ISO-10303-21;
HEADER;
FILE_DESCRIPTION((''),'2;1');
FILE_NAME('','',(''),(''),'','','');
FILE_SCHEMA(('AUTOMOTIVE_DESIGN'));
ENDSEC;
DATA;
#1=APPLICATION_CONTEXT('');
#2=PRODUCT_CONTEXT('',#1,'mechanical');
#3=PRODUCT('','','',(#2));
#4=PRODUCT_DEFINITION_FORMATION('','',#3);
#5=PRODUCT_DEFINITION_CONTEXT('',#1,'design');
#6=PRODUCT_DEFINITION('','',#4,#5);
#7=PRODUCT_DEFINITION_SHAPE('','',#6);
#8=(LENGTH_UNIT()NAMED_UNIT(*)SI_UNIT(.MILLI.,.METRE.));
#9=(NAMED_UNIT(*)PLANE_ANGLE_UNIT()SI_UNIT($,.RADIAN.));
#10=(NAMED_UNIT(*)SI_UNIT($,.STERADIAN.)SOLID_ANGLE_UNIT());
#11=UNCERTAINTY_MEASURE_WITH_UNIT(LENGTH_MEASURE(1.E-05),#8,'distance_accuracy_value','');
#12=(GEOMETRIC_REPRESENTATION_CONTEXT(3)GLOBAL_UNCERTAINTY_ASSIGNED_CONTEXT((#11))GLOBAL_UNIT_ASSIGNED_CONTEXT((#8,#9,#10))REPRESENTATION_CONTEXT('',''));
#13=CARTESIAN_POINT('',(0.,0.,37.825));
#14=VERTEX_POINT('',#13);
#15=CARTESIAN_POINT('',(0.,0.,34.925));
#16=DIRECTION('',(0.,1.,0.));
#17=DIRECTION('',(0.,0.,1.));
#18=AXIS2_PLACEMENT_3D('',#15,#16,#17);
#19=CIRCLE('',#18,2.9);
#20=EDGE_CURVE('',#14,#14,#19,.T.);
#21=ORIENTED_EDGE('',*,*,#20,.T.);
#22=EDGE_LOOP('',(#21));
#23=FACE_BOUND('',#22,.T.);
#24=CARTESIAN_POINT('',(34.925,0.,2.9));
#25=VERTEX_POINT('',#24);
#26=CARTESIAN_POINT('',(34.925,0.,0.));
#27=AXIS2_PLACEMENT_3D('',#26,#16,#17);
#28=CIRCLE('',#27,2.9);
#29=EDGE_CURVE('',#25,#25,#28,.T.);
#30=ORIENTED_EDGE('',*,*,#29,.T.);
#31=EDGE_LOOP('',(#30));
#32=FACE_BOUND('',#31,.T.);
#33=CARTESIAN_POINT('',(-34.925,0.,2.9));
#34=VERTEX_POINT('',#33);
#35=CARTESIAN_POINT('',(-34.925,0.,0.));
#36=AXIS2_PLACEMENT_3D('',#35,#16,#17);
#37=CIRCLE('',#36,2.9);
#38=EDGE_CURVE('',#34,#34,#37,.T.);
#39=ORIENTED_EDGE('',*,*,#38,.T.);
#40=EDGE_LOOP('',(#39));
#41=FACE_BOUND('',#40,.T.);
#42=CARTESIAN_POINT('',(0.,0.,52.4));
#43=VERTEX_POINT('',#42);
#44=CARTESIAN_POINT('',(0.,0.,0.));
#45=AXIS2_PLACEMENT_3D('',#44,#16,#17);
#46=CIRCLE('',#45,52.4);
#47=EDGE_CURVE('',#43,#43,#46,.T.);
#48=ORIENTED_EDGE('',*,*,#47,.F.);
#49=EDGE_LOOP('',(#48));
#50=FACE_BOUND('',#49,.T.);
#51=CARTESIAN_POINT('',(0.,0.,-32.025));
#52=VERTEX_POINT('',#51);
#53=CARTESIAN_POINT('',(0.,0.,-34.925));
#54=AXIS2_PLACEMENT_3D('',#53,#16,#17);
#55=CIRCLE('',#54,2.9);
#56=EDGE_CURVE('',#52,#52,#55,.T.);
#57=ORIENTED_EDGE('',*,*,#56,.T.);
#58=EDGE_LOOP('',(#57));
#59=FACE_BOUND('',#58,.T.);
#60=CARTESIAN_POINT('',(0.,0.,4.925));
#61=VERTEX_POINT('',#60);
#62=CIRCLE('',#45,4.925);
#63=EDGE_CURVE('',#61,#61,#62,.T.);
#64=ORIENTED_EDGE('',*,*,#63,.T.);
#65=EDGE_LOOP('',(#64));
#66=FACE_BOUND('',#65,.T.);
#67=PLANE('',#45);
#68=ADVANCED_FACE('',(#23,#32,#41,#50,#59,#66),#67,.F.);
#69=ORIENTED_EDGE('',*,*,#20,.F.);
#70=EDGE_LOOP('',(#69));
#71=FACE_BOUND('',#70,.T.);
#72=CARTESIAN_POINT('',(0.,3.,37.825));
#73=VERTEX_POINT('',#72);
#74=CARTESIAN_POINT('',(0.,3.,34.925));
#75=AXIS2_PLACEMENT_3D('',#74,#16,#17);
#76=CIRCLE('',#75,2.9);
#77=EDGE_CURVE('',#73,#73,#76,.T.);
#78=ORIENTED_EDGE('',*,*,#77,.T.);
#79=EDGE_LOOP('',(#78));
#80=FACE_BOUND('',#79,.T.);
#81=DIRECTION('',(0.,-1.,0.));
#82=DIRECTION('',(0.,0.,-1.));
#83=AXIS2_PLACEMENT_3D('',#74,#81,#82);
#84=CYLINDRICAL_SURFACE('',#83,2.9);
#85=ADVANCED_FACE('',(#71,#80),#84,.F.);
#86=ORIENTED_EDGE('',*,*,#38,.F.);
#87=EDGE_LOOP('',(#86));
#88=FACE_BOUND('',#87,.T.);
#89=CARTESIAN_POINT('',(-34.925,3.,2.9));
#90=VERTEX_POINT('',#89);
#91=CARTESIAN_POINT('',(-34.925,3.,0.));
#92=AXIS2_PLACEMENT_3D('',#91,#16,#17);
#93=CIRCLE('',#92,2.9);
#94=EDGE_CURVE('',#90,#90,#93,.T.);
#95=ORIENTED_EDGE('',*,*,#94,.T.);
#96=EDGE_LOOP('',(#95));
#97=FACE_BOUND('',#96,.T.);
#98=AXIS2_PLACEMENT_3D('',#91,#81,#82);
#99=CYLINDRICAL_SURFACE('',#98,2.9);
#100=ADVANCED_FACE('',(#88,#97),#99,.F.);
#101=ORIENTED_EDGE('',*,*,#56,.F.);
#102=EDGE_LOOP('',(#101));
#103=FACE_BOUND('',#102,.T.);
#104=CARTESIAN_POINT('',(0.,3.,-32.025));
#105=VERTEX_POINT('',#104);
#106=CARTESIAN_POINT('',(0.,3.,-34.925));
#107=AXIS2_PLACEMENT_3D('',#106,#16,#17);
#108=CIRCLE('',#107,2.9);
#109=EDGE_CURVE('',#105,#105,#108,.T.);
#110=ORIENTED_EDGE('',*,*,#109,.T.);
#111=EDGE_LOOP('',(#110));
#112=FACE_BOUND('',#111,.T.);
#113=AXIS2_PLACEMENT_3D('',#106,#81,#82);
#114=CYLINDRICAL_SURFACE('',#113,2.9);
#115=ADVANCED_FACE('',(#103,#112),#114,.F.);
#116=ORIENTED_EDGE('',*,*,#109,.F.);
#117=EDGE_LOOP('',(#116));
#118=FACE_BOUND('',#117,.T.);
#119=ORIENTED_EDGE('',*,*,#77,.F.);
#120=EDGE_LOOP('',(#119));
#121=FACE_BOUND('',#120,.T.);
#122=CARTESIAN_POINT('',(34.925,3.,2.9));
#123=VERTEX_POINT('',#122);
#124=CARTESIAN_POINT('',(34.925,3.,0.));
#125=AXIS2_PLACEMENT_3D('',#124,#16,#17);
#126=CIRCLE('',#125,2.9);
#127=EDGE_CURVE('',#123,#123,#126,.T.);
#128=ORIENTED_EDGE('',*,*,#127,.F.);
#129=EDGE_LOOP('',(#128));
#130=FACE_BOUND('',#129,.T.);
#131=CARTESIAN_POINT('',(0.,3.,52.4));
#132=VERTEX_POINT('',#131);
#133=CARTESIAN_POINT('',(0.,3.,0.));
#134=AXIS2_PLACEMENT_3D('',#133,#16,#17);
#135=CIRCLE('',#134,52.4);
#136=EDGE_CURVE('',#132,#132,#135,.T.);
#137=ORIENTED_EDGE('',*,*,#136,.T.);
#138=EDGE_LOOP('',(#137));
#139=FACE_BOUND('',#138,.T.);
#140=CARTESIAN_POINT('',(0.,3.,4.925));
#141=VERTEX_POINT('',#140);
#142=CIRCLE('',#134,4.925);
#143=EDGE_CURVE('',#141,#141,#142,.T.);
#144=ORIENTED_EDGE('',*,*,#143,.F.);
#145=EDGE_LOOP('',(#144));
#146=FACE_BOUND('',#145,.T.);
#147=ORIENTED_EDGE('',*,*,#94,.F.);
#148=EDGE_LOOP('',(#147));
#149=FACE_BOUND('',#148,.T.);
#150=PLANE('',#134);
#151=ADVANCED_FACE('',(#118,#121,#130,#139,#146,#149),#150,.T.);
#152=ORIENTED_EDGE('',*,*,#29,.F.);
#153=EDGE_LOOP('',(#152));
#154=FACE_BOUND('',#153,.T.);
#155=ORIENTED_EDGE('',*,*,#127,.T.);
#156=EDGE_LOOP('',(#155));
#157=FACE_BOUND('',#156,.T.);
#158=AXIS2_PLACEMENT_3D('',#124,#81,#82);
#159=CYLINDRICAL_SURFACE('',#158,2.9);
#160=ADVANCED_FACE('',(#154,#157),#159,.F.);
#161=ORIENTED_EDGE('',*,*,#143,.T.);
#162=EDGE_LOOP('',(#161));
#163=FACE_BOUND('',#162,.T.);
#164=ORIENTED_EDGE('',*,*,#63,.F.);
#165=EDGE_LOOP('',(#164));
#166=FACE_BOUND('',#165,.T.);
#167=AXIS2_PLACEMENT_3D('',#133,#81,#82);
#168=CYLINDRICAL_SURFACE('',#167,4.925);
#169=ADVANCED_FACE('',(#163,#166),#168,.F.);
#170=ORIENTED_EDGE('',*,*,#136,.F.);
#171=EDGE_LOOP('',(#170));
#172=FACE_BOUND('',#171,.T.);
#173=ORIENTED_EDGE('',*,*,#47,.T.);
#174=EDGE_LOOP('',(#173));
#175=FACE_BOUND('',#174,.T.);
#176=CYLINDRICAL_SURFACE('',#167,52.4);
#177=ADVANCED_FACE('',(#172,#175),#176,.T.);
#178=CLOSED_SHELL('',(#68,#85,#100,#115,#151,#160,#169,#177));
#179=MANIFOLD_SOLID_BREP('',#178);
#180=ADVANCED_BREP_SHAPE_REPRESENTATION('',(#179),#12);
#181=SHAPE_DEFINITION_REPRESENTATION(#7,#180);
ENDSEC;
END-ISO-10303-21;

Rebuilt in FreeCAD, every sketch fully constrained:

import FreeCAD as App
import Part
import Sketcher

V = App.Vector

doc = App.newDocument("Part")
body = doc.addObject("PartDesign::Body", "Body")

# Sketch on XZ plane
sketch1 = body.newObject("Sketcher::SketchObject", "Sketch")
sketch1.AttachmentSupport = (doc.getObject("XZ_Plane"), [""])
sketch1.MapMode = "FlatFace"
sketch1.addGeometry([
    Part.Circle(V(0, 0, 0), V(0, 0, 1), 52.4),  # 0
    Part.Circle(V(0, 34.9, 0), V(0, 0, 1), 2.9),  # 1
    Part.Circle(V(-34.9, 0, 0), V(0, 0, 1), 2.9),  # 2
    Part.Circle(V(0, 0, 0), V(0, 0, 1), 4.9),  # 3
    Part.Circle(V(34.9, 0, 0), V(0, 0, 1), 2.9),  # 4
    Part.Circle(V(0, -34.9, 0), V(0, 0, 1), 2.9),  # 5
], False)
sketch1.addConstraint([
    Sketcher.Constraint("Coincident", 0, 3, -1, 1),
    Sketcher.Constraint("Coincident", 3, 3, -1, 1),
    Sketcher.Constraint("Equal", 1, 2),
    Sketcher.Constraint("Equal", 2, 4),
    Sketcher.Constraint("Equal", 4, 5),
    Sketcher.Constraint("Symmetric", 2, 3, 4, 3, -1, 1),
    Sketcher.Constraint("Symmetric", 1, 3, 5, 3, -1, 1),
    Sketcher.Constraint("PointOnObject", 1, 3, -2),
    Sketcher.Constraint("PointOnObject", 2, 3, -1),
    Sketcher.Constraint("Diameter", 0, 104.8),
    Sketcher.Constraint("Diameter", 1, 5.8),
    Sketcher.Constraint("Diameter", 3, 9.85),
    Sketcher.Constraint("DistanceX", 2, 3, 4, 3, 69.85),
    Sketcher.Constraint("DistanceY", 5, 3, 1, 3, 69.85),
])
pad1 = body.newObject("PartDesign::Pad", "Pad")
pad1.Profile = sketch1
pad1.Length = 3
pad1.Reversed = True

doc.recompute()
